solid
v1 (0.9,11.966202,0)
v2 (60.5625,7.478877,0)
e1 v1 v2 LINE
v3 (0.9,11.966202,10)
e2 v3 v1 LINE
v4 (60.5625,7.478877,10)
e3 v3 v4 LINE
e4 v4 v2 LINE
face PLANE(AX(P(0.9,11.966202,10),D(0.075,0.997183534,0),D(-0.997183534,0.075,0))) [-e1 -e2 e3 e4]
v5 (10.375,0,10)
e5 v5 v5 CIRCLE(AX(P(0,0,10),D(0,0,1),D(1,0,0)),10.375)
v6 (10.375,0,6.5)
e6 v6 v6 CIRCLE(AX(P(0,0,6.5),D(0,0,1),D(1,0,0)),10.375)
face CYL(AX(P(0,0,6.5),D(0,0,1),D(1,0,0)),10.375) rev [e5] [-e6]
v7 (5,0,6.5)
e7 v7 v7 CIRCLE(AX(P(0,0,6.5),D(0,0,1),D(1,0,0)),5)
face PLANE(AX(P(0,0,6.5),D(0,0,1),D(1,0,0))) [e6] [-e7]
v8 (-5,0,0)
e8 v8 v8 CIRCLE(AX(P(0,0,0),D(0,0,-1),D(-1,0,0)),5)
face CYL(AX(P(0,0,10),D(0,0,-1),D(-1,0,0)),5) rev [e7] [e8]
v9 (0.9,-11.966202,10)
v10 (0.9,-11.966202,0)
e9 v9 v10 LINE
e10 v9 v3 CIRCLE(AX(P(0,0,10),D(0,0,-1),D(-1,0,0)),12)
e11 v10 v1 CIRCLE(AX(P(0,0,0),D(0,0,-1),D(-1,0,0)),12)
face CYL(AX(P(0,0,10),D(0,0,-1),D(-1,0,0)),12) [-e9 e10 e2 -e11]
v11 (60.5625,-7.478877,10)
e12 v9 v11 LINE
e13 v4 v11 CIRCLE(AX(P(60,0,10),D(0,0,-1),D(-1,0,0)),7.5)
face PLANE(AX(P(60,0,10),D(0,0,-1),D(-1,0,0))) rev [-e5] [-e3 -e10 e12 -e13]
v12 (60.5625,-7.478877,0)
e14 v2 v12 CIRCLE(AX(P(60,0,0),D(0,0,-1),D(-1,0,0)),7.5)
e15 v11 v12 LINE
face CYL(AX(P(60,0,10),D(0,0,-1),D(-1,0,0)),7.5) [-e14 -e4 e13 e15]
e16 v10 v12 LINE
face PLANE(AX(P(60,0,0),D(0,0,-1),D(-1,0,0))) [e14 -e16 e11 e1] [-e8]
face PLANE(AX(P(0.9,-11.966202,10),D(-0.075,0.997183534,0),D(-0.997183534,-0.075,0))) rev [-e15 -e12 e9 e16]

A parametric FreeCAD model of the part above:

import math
import FreeCAD as App
import Part
import Sketcher

V = App.Vector

doc = App.newDocument("Part")
params = doc.addObject("Spreadsheet::Sheet", "Params")
for row, (alias, value) in enumerate([
    ("sketch1_radius", "12 mm"),
    ("sketch1_radius2", "7.5 mm"),
    ("pad1_length", "10 mm"),
    ("sketch2_diameter", "20.75 mm"),
    ("pocket1_length", "3.5 mm"),
    ("sketch3_diameter", "10 mm"),
], start=1):
    params.set(f"A{row}", alias)
    params.set(f"B{row}", "=" + value)
    params.setAlias(f"B{row}", alias)

body = doc.addObject("PartDesign::Body", "Body")

sketch1 = body.newObject("Sketcher::SketchObject", "Sketch")
sketch1.AttachmentSupport = (doc.getObject("XY_Plane"), [""])
sketch1.MapMode = "FlatFace"
sketch1.addGeometry([
    Part.LineSegment(V(1, -12, 0), V(61, -7, 0)),
    Part.ArcOfCircle(Part.Circle(V(60, 0, 0), V(0, 0, 1), 8), math.radians(-86), math.radians(86)),
    Part.LineSegment(V(61, 7, 0), V(1, 12, 0)),
    Part.ArcOfCircle(Part.Circle(V(0, 0, 0), V(0, 0, 1), 12), math.radians(86), math.radians(274)),
], False)
sketch1.addConstraint([
    Sketcher.Constraint("Tangent", 0, 2, 1, 1),
    Sketcher.Constraint("Tangent", 1, 2, 2, 1),
    Sketcher.Constraint("Tangent", 2, 2, 3, 1),
    Sketcher.Constraint("Tangent", 3, 2, 0, 1),
    Sketcher.Constraint("Coincident", 3, 3, -1, 1),
    Sketcher.Constraint("PointOnObject", 1, 3, -1),
    Sketcher.Constraint("Radius", 3, 12.0),
    Sketcher.Constraint("Radius", 1, 7.5),
    Sketcher.Constraint("DistanceX", -1, 1, 1, 3, 60.0),
])
sketch1.setExpression("Constraints[6]", "Params.sketch1_radius")
sketch1.setExpression("Constraints[7]", "Params.sketch1_radius2")
pad1 = body.newObject("PartDesign::Pad", "Pad")
pad1.Profile = sketch1
pad1.setExpression("Length", "Params.pad1_length")

sketch2 = body.newObject("Sketcher::SketchObject", "Sketch001")
sketch2.AttachmentSupport = (doc.getObject("XY_Plane"), [""])
sketch2.MapMode = "FlatFace"
sketch2.AttachmentOffset = App.Placement(V(0, 0, 10), App.Rotation())
sketch2.addGeometry(Part.Circle(V(0, 0, 0), V(0, 0, 1), 10), False)
sketch2.addConstraint([
    Sketcher.Constraint("Coincident", 0, 3, -1, 1),
    Sketcher.Constraint("Diameter", 0, 20.75),
])
sketch2.setExpression("Constraints[1]", "Params.sketch2_diameter")
pocket1 = body.newObject("PartDesign::Pocket", "Pocket")
pocket1.Profile = sketch2
pocket1.setExpression("Length", "Params.pocket1_length")

sketch3 = body.newObject("Sketcher::SketchObject", "Sketch002")
sketch3.AttachmentSupport = (doc.getObject("XY_Plane"), [""])
sketch3.MapMode = "FlatFace"
sketch3.addGeometry(Part.Circle(V(0, 0, 0), V(0, 0, 1), 5), False)
sketch3.addConstraint([
    Sketcher.Constraint("Coincident", 0, 3, -1, 1),
    Sketcher.Constraint("Diameter", 0, 10.0),
])
sketch3.setExpression("Constraints[1]", "Params.sketch3_diameter")
pocket2 = body.newObject("PartDesign::Pocket", "Pocket001")
pocket2.Profile = sketch3
pocket2.Type = "ThroughAll"
pocket2.Reversed = True

doc.recompute()
